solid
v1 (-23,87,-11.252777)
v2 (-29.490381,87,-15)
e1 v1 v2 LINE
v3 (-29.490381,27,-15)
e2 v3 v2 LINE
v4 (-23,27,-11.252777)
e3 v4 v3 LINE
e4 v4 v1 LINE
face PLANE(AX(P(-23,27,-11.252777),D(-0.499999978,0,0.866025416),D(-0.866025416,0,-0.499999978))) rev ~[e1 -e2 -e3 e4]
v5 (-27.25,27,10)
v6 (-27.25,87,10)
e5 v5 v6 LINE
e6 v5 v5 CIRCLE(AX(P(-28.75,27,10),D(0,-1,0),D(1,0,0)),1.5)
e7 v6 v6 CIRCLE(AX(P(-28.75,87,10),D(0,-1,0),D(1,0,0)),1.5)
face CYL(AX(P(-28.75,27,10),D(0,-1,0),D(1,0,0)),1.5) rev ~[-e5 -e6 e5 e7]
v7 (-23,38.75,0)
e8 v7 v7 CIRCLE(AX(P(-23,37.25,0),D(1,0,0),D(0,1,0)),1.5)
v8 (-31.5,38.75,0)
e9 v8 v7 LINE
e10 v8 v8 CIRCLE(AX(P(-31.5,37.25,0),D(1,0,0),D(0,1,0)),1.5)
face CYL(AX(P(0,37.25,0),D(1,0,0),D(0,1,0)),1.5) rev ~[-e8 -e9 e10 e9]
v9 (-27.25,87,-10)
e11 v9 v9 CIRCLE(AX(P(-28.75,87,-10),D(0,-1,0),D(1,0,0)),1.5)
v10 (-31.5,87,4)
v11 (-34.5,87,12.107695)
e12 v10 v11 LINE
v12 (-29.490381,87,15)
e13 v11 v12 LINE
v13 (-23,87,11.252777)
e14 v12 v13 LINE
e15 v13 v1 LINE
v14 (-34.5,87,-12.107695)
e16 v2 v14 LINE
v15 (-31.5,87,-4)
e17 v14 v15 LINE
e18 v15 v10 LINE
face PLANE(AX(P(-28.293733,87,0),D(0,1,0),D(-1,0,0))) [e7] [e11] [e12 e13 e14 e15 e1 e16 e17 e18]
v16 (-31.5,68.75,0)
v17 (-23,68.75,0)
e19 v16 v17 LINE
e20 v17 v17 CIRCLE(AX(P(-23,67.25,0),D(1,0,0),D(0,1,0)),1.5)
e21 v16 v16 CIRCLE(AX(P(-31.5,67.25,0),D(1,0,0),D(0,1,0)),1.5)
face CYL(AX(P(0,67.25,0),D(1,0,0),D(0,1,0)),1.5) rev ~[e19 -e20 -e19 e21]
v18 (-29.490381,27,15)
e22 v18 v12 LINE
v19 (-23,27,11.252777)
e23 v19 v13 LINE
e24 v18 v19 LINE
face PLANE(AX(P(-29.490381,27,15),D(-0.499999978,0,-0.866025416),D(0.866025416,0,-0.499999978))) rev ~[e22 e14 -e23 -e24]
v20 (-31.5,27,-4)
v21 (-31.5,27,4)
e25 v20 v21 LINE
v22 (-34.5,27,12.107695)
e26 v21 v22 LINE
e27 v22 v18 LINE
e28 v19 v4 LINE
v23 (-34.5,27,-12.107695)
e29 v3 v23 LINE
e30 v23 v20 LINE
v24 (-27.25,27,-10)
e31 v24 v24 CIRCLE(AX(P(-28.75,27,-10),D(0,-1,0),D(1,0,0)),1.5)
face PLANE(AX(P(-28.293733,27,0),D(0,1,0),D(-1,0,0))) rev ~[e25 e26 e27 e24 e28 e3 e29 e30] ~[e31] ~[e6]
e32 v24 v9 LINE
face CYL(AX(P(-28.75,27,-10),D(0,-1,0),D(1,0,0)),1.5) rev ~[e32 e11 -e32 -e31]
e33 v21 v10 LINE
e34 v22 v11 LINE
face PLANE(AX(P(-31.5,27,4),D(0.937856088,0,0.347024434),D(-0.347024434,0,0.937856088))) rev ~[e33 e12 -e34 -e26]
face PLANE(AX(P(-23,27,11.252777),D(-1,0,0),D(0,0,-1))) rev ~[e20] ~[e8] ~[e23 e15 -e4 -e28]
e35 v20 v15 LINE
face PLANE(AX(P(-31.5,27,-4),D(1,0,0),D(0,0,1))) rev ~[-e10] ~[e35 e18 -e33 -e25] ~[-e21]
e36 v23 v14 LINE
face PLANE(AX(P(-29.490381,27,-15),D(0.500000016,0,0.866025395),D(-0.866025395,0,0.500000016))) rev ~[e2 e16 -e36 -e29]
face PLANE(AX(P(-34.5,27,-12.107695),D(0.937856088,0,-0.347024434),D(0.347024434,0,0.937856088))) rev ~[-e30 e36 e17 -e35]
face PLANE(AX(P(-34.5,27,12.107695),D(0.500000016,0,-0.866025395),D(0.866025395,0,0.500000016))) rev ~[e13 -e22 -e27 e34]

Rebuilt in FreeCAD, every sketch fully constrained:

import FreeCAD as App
import Part
import Sketcher

V = App.Vector
Q = App.Units.Quantity


def add_polygon(sketch, points):
    """Adds a closed chain of lines whose ends are joined by coincident constraints."""
    first, n = sketch.GeometryCount, len(points)
    for a, b in zip(points, points[1:] + points[:1]):
        sketch.addGeometry(Part.LineSegment(App.Vector(*a, 0), App.Vector(*b, 0)), False)
    for i in range(n):
        sketch.addConstraint(Sketcher.Constraint("Coincident", first + i, 2, first + (i + 1) % n, 1))

doc = App.newDocument("Part")
body = doc.addObject("PartDesign::Body", "Body")

# Sketch on YZ plane
sketch1 = body.newObject("Sketcher::SketchObject", "Sketch")
sketch1.AttachmentSupport = (doc.getObject("YZ_Plane"), [""])
sketch1.MapMode = "FlatFace"
sketch1.addGeometry(Part.Circle(V(37.2, 0, 0), V(0, 0, 1), 1.5), False)
sketch1.addConstraint(Sketcher.Constraint("PointOnObject", 0, 3, -1))
sketch1.addConstraint(Sketcher.Constraint("Diameter", 0, Q("3 mm")))
sketch1.addConstraint(Sketcher.Constraint("DistanceX", -1, 1, 0, 3, Q("37.25 mm")))
pad1 = body.newObject("PartDesign::Pad", "Pad")
pad1.Profile = sketch1
pad1.Length = 100
pad1.Midplane = True
body2 = doc.addObject("PartDesign::Body", "Body001")
body2.AllowCompound = True

# Sketch on YZ plane
sketch2 = body2.newObject("Sketcher::SketchObject", "Sketch001")
sketch2.AttachmentSupport = (doc.getObject("YZ_Plane001"), [""])
sketch2.MapMode = "FlatFace"
sketch2.addGeometry(Part.Circle(V(67.2, 0, 0), V(0, 0, 1), 1.5), False)
sketch2.addConstraint(Sketcher.Constraint("PointOnObject", 0, 3, -1))
sketch2.addConstraint(Sketcher.Constraint("Diameter", 0, Q("3 mm")))
sketch2.addConstraint(Sketcher.Constraint("DistanceX", -1, 1, 0, 3, Q("67.25 mm")))
pad2 = body2.newObject("PartDesign::Pad", "Pad001")
pad2.Profile = sketch2
pad2.Length = 100
pad2.Midplane = True
doc.recompute()

boolean = body2.newObject("PartDesign::Boolean", "Boolean")
boolean.Type = "Fuse"
boolean.addObjects([body])
body3 = doc.addObject("PartDesign::Body", "Body002")

# Sketch on XZ plane
sketch3 = body3.newObject("Sketcher::SketchObject", "Sketch002")
sketch3.AttachmentSupport = (doc.getObject("XZ_Plane002"), [""])
sketch3.MapMode = "FlatFace"
sketch3.AttachmentOffset = App.Placement(V(0, 0, -27), App.Rotation())
add_polygon(sketch3, [(-31.5, 4), (-31.5, -4), (-34.5, -12.1), (-29.5, -15), (-23, -11.3), (-23, 11.3), (-29.5, 15), (-34.5, 12.1)])  # lines 0-7
sketch3.addGeometry(Part.Circle(V(-28.8, -10, 0), V(0, 0, 1), 1.5), False)  # 8
sketch3.addGeometry(Part.Circle(V(-28.8, 10, 0), V(0, 0, 1), 1.5), False)  # 9
sketch3.addConstraint(Sketcher.Constraint("Vertical", 0))
sketch3.addConstraint(Sketcher.Constraint("Vertical", 4))
sketch3.addConstraint(Sketcher.Constraint("Equal", 8, 9))
sketch3.addConstraint(Sketcher.Constraint("Symmetric", 8, 3, 9, 3, -1))
sketch3.addConstraint(Sketcher.Constraint("Symmetric", 2, 2, 5, 2, -1))
sketch3.addConstraint(Sketcher.Constraint("Symmetric", 1, 2, 6, 2, -1))
sketch3.addConstraint(Sketcher.Constraint("Parallel", 2, 5))
sketch3.addConstraint(Sketcher.Constraint("Parallel", 3, 6))
sketch3.addConstraint(Sketcher.Constraint("Equal", 1, 7))
sketch3.addConstraint(Sketcher.Constraint("Diameter", 8, Q("3 mm")))
sketch3.addConstraint(Sketcher.Constraint("DistanceY", 0, 2, 0, 1, Q("8 mm")))
sketch3.addConstraint(Sketcher.Constraint("Angle", 2, Q("-30.000001 deg")))
sketch3.addConstraint(Sketcher.Constraint("DistanceY", 8, 3, -1, 1, Q("10 mm")))
sketch3.addConstraint(Sketcher.Constraint("DistanceY", 2, 2, -1, 1, Q("15 mm")))
sketch3.addConstraint(Sketcher.Constraint("DistanceX", 3, 2, -1, 1, Q("23 mm")))
sketch3.addConstraint(Sketcher.Constraint("DistanceX", 1, 2, 0, 2, Q("3 mm")))
sketch3.addConstraint(Sketcher.Constraint("DistanceX", 0, 2, -1, 1, Q("31.5 mm")))
sketch3.addConstraint(Sketcher.Constraint("DistanceX", 8, 3, -1, 1, Q("28.75 mm")))
sketch3.addConstraint(Sketcher.Constraint("Distance", 2, Q("5.78461 mm")))
pad3 = body3.newObject("PartDesign::Pad", "Pad002")
pad3.Profile = sketch3
pad3.Length = 60
pad3.Reversed = True
doc.recompute()

boolean2 = body3.newObject("PartDesign::Boolean", "Boolean001")
boolean2.Type = "Cut"
boolean2.addObjects([body2])

doc.recompute()
